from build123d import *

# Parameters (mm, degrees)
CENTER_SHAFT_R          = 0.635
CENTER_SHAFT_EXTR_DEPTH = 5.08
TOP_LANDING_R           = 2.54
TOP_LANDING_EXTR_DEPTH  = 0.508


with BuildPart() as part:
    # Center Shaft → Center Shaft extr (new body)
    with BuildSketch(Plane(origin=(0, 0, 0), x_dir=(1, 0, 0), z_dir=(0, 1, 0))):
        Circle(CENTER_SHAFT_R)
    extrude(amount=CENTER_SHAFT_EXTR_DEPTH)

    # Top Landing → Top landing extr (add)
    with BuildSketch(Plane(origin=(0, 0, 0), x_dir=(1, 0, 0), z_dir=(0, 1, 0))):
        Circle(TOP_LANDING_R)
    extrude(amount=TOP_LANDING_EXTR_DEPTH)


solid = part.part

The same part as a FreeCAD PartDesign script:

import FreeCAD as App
import Part
import Sketcher

V = App.Vector
Q = App.Units.Quantity

doc = App.newDocument("Part")
params = doc.addObject("Spreadsheet::Sheet", "Params")
for row, (alias, value) in enumerate([
    ("sketch1_diameter", "0.05 in"),
    ("pad1_length", "0.2 in"),
    ("sketch2_diameter", "0.2 in"),
    ("pad2_length", "0.02 in"),
], start=1):
    params.set(f"A{row}", alias)
    params.set(f"B{row}", "=" + value)
    params.setAlias(f"B{row}", alias)

body = doc.addObject("PartDesign::Body", "Body")

# Sketch on XZ plane
sketch1 = body.newObject("Sketcher::SketchObject", "Sketch")
sketch1.AttachmentSupport = (doc.getObject("XZ_Plane"), [""])
sketch1.MapMode = "FlatFace"
sketch1.addGeometry(Part.Circle(V(0, 0, 0), V(0, 0, 1), 0.6), False)
sketch1.addConstraint([
    Sketcher.Constraint("Coincident", 0, 3, -1, 1),
    Sketcher.Constraint("Diameter", 0, Q("0.05 in")),
])
sketch1.setExpression("Constraints[1]", "Params.sketch1_diameter")
pad1 = body.newObject("PartDesign::Pad", "Pad")
pad1.Profile = sketch1
pad1.setExpression("Length", "Params.pad1_length")
pad1.Reversed = True

# Sketch on XZ plane
sketch2 = body.newObject("Sketcher::SketchObject", "Sketch001")
sketch2.AttachmentSupport = (doc.getObject("XZ_Plane"), [""])
sketch2.MapMode = "FlatFace"
sketch2.addGeometry(Part.Circle(V(0, 0, 0), V(0, 0, 1), 2.5), False)
sketch2.addConstraint([
    Sketcher.Constraint("Coincident", 0, 3, -1, 1),
    Sketcher.Constraint("Diameter", 0, Q("0.2 in")),
])
sketch2.setExpression("Constraints[1]", "Params.sketch2_diameter")
pad2 = body.newObject("PartDesign::Pad", "Pad001")
pad2.Profile = sketch2
pad2.setExpression("Length", "Params.pad2_length")
pad2.Reversed = True

doc.recompute()
